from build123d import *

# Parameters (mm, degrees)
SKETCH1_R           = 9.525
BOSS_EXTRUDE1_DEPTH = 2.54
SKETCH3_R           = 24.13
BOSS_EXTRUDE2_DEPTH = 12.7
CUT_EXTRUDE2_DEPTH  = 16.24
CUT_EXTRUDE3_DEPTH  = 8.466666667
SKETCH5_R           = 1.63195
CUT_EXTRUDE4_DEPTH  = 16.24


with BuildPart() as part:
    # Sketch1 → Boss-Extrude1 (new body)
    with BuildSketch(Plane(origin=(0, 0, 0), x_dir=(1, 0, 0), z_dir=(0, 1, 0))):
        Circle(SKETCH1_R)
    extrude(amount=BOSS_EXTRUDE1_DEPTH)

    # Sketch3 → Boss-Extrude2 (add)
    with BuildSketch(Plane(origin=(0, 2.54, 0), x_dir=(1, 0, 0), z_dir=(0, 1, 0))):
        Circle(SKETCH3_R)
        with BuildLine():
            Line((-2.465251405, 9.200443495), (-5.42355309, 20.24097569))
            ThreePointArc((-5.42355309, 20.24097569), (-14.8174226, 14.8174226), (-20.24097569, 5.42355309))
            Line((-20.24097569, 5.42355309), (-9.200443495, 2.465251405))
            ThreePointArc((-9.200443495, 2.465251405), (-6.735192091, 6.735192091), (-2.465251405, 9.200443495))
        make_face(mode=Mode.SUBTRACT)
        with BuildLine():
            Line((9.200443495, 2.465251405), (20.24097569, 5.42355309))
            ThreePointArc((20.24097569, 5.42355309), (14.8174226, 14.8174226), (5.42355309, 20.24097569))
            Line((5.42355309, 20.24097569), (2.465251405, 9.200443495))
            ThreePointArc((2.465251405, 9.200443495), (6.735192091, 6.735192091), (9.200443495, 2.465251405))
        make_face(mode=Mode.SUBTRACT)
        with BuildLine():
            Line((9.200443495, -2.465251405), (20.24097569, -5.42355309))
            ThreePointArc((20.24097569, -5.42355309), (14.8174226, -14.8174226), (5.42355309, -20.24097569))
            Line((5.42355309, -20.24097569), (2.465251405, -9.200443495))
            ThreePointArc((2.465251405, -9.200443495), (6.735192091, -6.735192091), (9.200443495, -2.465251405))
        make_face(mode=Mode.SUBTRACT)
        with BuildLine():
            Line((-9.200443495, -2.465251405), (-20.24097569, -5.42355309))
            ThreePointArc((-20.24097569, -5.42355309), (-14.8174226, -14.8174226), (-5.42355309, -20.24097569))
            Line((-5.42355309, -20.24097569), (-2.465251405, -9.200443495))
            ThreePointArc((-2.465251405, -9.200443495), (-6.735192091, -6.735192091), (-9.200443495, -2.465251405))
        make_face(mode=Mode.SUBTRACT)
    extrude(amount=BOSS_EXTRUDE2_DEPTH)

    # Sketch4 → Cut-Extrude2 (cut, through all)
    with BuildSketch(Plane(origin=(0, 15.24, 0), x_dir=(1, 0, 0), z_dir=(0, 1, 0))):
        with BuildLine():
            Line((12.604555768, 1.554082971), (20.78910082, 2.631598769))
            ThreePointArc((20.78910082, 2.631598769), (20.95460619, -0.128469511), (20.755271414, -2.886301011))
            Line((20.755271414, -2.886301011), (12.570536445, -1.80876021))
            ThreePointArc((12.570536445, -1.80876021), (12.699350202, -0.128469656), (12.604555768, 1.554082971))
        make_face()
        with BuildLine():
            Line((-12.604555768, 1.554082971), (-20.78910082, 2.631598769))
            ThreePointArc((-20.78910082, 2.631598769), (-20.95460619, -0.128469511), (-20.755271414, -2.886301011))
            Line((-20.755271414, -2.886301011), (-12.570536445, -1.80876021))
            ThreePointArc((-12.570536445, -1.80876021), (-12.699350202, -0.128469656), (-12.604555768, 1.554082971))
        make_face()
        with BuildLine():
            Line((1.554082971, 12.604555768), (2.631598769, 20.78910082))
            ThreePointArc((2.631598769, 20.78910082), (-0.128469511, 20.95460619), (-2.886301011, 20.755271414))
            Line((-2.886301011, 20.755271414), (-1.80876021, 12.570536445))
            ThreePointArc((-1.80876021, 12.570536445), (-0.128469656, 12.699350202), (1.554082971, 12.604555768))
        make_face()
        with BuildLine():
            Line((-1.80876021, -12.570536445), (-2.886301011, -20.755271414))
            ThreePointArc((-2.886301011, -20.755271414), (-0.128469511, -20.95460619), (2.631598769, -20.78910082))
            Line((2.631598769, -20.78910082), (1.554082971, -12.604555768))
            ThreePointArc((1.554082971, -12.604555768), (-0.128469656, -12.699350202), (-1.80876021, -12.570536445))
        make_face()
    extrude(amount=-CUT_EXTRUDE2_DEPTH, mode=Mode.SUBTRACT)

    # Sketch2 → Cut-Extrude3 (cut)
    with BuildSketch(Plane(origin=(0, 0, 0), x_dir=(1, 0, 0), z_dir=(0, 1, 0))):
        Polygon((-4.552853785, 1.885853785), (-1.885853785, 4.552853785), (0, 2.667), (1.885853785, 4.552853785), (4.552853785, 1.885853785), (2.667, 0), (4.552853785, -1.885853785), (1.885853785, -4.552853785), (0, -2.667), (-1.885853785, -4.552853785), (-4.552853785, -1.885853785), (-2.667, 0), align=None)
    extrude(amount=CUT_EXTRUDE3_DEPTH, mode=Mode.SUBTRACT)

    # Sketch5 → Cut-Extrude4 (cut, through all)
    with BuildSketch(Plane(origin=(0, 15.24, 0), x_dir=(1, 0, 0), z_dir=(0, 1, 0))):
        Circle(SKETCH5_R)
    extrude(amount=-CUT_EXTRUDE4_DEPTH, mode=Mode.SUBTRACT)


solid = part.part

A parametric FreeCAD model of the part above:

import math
import FreeCAD as App
import Part
import Sketcher
Q = App.Units.Quantity


def add_polygon(sketch, points):
    """Adds a closed chain of lines whose ends are joined by coincident constraints."""
    first, n = sketch.GeometryCount, len(points)
    for a, b in zip(points, points[1:] + points[:1]):
        sketch.addGeometry(Part.LineSegment(App.Vector(*a, 0), App.Vector(*b, 0)), False)
    for i in range(n):
        sketch.addConstraint(Sketcher.Constraint("Coincident", first + i, 2, first + (i + 1) % n, 1))

doc = App.newDocument("Part")
body = doc.addObject("PartDesign::Body", "Body")

# Sketch on XZ plane
sketch1 = body.newObject("Sketcher::SketchObject", "Sketch")
sketch1.AttachmentSupport = (doc.getObject("XZ_Plane"), [""])
sketch1.MapMode = "FlatFace"
sketch1.addGeometry(Part.Circle(App.Vector(0, 0, 0), App.Vector(0, 0, 1), 9.525), False)
sketch1.addConstraint(Sketcher.Constraint("Coincident", 0, 3, -1, 1))
sketch1.addConstraint(Sketcher.Constraint("Diameter", 0, Q("0.75 in")))
pad1 = body.newObject("PartDesign::Pad", "Pad")
pad1.Profile = sketch1
pad1.Length = Q("0.1 in")
pad1.Reversed = True

# Sketch on XZ plane
sketch2 = body.newObject("Sketcher::SketchObject", "Sketch001")
sketch2.AttachmentSupport = (doc.getObject("XZ_Plane"), [""])
sketch2.MapMode = "FlatFace"
sketch2.AttachmentOffset = App.Placement(App.Vector(0, 0, -0.1 * 25.4), App.Rotation())
sketch2.addGeometry(Part.Circle(App.Vector(0, 0, 0), App.Vector(0, 0, 1), 24.13), False)
sketch2.addGeometry(Part.LineSegment(App.Vector(-20.240976, 5.423553, 0), App.Vector(-9.200443, 2.465251, 0)), False)
sketch2.addGeometry(Part.ArcOfCircle(Part.Circle(App.Vector(0, 0, 0), App.Vector(0, 0, 1), 9.525), math.radians(105), math.radians(165)), False)
sketch2.addGeometry(Part.LineSegment(App.Vector(-2.465251, 9.200443, 0), App.Vector(-5.423553, 20.240976, 0)), False)
sketch2.addGeometry(Part.ArcOfCircle(Part.Circle(App.Vector(0, 0, 0), App.Vector(0, 0, 1), 20.955), math.radians(105), math.radians(165)), False)
sketch2.addGeometry(Part.ArcOfCircle(Part.Circle(App.Vector(0, 0, 0), App.Vector(0, 0, 1), 9.525), math.radians(15), math.radians(75)), False)
sketch2.addGeometry(Part.LineSegment(App.Vector(9.200443, 2.465251, 0), App.Vector(20.240976, 5.423553, 0)), False)
sketch2.addGeometry(Part.ArcOfCircle(Part.Circle(App.Vector(0, 0, 0), App.Vector(0, 0, 1), 20.955), math.radians(15), math.radians(75)), False)
sketch2.addGeometry(Part.LineSegment(App.Vector(5.423553, 20.240976, 0), App.Vector(2.465251, 9.200443, 0)), False)
sketch2.addGeometry(Part.LineSegment(App.Vector(-5.423553, -20.240976, 0), App.Vector(-2.465251, -9.200443, 0)), False)
sketch2.addGeometry(Part.ArcOfCircle(Part.Circle(App.Vector(0, 0, 0), App.Vector(0, 0, 1), 9.525), math.radians(-165), math.radians(-105)), False)
sketch2.addGeometry(Part.LineSegment(App.Vector(-9.200443, -2.465251, 0), App.Vector(-20.240976, -5.423553, 0)), False)
sketch2.addGeometry(Part.ArcOfCircle(Part.Circle(App.Vector(0, 0, 0), App.Vector(0, 0, 1), 20.955), math.radians(-165), math.radians(-105)), False)
sketch2.addGeometry(Part.LineSegment(App.Vector(20.240976, -5.423553, 0), App.Vector(9.200443, -2.465251, 0)), False)
sketch2.addGeometry(Part.ArcOfCircle(Part.Circle(App.Vector(0, 0, 0), App.Vector(0, 0, 1), 9.525), math.radians(-75), math.radians(-15)), False)
sketch2.addGeometry(Part.LineSegment(App.Vector(2.465251, -9.200443, 0), App.Vector(5.423553, -20.240976, 0)), False)
sketch2.addGeometry(Part.ArcOfCircle(Part.Circle(App.Vector(0, 0, 0), App.Vector(0, 0, 1), 20.955), math.radians(-75), math.radians(-15)), False)
sketch2.addConstraint(Sketcher.Constraint("Coincident", 1, 2, 2, 2))
sketch2.addConstraint(Sketcher.Constraint("Coincident", 2, 1, 3, 1))
sketch2.addConstraint(Sketcher.Constraint("Coincident", 3, 2, 4, 1))
sketch2.addConstraint(Sketcher.Constraint("Coincident", 4, 2, 1, 1))
sketch2.addConstraint(Sketcher.Constraint("Coincident", 5, 1, 6, 1))
sketch2.addConstraint(Sketcher.Constraint("Coincident", 6, 2, 7, 1))
sketch2.addConstraint(Sketcher.Constraint("Coincident", 7, 2, 8, 1))
sketch2.addConstraint(Sketcher.Constraint("Coincident", 8, 2, 5, 2))
sketch2.addConstraint(Sketcher.Constraint("Coincident", 9, 2, 10, 2))
sketch2.addConstraint(Sketcher.Constraint("Coincident", 10, 1, 11, 1))
sketch2.addConstraint(Sketcher.Constraint("Coincident", 11, 2, 12, 1))
sketch2.addConstraint(Sketcher.Constraint("Coincident", 12, 2, 9, 1))
sketch2.addConstraint(Sketcher.Constraint("Coincident", 13, 2, 14, 2))
sketch2.addConstraint(Sketcher.Constraint("Coincident", 14, 1, 15, 1))
sketch2.addConstraint(Sketcher.Constraint("Coincident", 15, 2, 16, 1))
sketch2.addConstraint(Sketcher.Constraint("Coincident", 16, 2, 13, 1))
sketch2.addConstraint(Sketcher.Constraint("Coincident", 0, 3, -1, 1))
sketch2.addConstraint(Sketcher.Constraint("Coincident", 2, 3, -1, 1))
sketch2.addConstraint(Sketcher.Constraint("Coincident", 4, 3, -1, 1))
sketch2.addConstraint(Sketcher.Constraint("Coincident", 5, 3, -1, 1))
sketch2.addConstraint(Sketcher.Constraint("Coincident", 7, 3, -1, 1))
sketch2.addConstraint(Sketcher.Constraint("Coincident", 10, 3, -1, 1))
sketch2.addConstraint(Sketcher.Constraint("Coincident", 12, 3, -1, 1))
sketch2.addConstraint(Sketcher.Constraint("Coincident", 14, 3, -1, 1))
sketch2.addConstraint(Sketcher.Constraint("Coincident", 16, 3, -1, 1))
sketch2.addConstraint(Sketcher.Constraint("Equal", 2, 5))
sketch2.addConstraint(Sketcher.Constraint("Equal", 4, 7))
sketch2.addConstraint(Sketcher.Constraint("Equal", 5, 10))
sketch2.addConstraint(Sketcher.Constraint("Equal", 7, 12))
sketch2.addConstraint(Sketcher.Constraint("Equal", 10, 14))
sketch2.addConstraint(Sketcher.Constraint("Equal", 12, 16))
sketch2.addConstraint(Sketcher.Constraint("Perpendicular", 3, 6))
sketch2.addConstraint(Sketcher.Constraint("Perpendicular", 1, 8))
sketch2.addConstraint(Sketcher.Constraint("Parallel", 8, 9))
sketch2.addConstraint(Sketcher.Constraint("Parallel", 6, 11))
sketch2.addConstraint(Sketcher.Constraint("Perpendicular", 9, 13))
sketch2.addConstraint(Sketcher.Constraint("Perpendicular", 11, 15))
sketch2.addConstraint(Sketcher.Constraint("Horizontal", 1, 2, 5, 1))
sketch2.addConstraint(Sketcher.Constraint("Horizontal", 4, 2, 6, 2))
sketch2.addConstraint(Sketcher.Constraint("Horizontal", 3, 2, 7, 2))
sketch2.addConstraint(Sketcher.Constraint("Horizontal", 10, 1, 13, 2))
sketch2.addConstraint(Sketcher.Constraint("Horizontal", 9, 2, 14, 1))
sketch2.addConstraint(Sketcher.Constraint("Vertical", 2, 1, 9, 2))
sketch2.addConstraint(Sketcher.Constraint("Vertical", 1, 2, 10, 1))
sketch2.addConstraint(Sketcher.Constraint("Diameter", 0, Q("1.9 in")))
sketch2.addConstraint(Sketcher.Constraint("Angle", 1, Q("-15 deg")))
sketch2.addConstraint(Sketcher.Constraint("Radius", 2, Q("0.375 in")))
sketch2.addConstraint(Sketcher.Constraint("Radius", 4, Q("0.825 in")))
sketch2.addConstraint(Sketcher.Constraint("DistanceY", -1, 1, 1, 2, Q("2.465251 mm")))
sketch2.addConstraint(Sketcher.Constraint("DistanceX", 2, 1, -1, 1, Q("2.465251 mm")))
pad2 = body.newObject("PartDesign::Pad", "Pad001")
pad2.Profile = sketch2
pad2.Length = Q("0.5 in")
pad2.Reversed = True

# Sketch on XZ plane
sketch3 = body.newObject("Sketcher::SketchObject", "Sketch002")
sketch3.AttachmentSupport = (doc.getObject("XZ_Plane"), [""])
sketch3.MapMode = "FlatFace"
sketch3.AttachmentOffset = App.Placement(App.Vector(0, 0, -0.6 * 25.4), App.Rotation())
sketch3.addGeometry(Part.LineSegment(App.Vector(20.789101, -2.631599, 0), App.Vector(12.604556, -1.554083, 0)), False)
sketch3.addGeometry(Part.ArcOfCircle(Part.Circle(App.Vector(0, 0, 0), App.Vector(0, 0, 1), 12.7), math.radians(-7.028829), math.radians(8.188025)), False)
sketch3.addGeometry(Part.LineSegment(App.Vector(12.570536, 1.80876, 0), App.Vector(20.755271, 2.886301, 0)), False)
sketch3.addGeometry(Part.ArcOfCircle(Part.Circle(App.Vector(0, 0, 0), App.Vector(0, 0, 1), 20.955), math.radians(-7.214444), math.radians(7.916978)), False)
sketch3.addGeometry(Part.LineSegment(App.Vector(-12.604556, -1.554083, 0), App.Vector(-20.789101, -2.631599, 0)), False)
sketch3.addGeometry(Part.ArcOfCircle(Part.Circle(App.Vector(0, 0, 0), App.Vector(0, 0, 1), 20.955), math.radians(172.083022), math.radians(187.214444)), False)
sketch3.addGeometry(Part.LineSegment(App.Vector(-20.755271, 2.886301, 0), App.Vector(-12.570536, 1.80876, 0)), False)
sketch3.addGeometry(Part.ArcOfCircle(Part.Circle(App.Vector(0, 0, 0), App.Vector(0, 0, 1), 12.7), math.radians(171.811975), math.radians(187.028829)), False)
sketch3.addGeometry(Part.LineSegment(App.Vector(1.554083, -12.604556, 0), App.Vector(2.631599, -20.789101, 0)), False)
sketch3.addGeometry(Part.ArcOfCircle(Part.Circle(App.Vector(0, 0, 0), App.Vector(0, 0, 1), 20.955), math.radians(-97.916978), math.radians(-82.785556)), False)
sketch3.addGeometry(Part.LineSegment(App.Vector(-2.886301, -20.755271, 0), App.Vector(-1.80876, -12.570536, 0)), False)
sketch3.addGeometry(Part.ArcOfCircle(Part.Circle(App.Vector(0, 0, 0), App.Vector(0, 0, 1), 12.7), math.radians(-98.188025), math.radians(-82.971171)), False)
sketch3.addGeometry(Part.LineSegment(App.Vector(-1.80876, 12.570536, 0), App.Vector(-2.886301, 20.755271, 0)), False)
sketch3.addGeometry(Part.ArcOfCircle(Part.Circle(App.Vector(0, 0, 0), App.Vector(0, 0, 1), 20.955), math.radians(82.785556), math.radians(97.916978)), False)
sketch3.addGeometry(Part.LineSegment(App.Vector(2.631599, 20.789101, 0), App.Vector(1.554083, 12.604556, 0)), False)
sketch3.addGeometry(Part.ArcOfCircle(Part.Circle(App.Vector(0, 0, 0), App.Vector(0, 0, 1), 12.7), math.radians(82.971171), math.radians(98.188025)), False)
sketch3.addConstraint(Sketcher.Constraint("Coincident", 0, 2, 1, 1))
sketch3.addConstraint(Sketcher.Constraint("Coincident", 1, 2, 2, 1))
sketch3.addConstraint(Sketcher.Constraint("Coincident", 2, 2, 3, 2))
sketch3.addConstraint(Sketcher.Constraint("Coincident", 3, 1, 0, 1))
sketch3.addConstraint(Sketcher.Constraint("Coincident", 4, 2, 5, 2))
sketch3.addConstraint(Sketcher.Constraint("Coincident", 5, 1, 6, 1))
sketch3.addConstraint(Sketcher.Constraint("Coincident", 6, 2, 7, 1))
sketch3.addConstraint(Sketcher.Constraint("Coincident", 7, 2, 4, 1))
sketch3.addConstraint(Sketcher.Constraint("Coincident", 8, 2, 9, 2))
sketch3.addConstraint(Sketcher.Constraint("Coincident", 9, 1, 10, 1))
sketch3.addConstraint(Sketcher.Constraint("Coincident", 10, 2, 11, 1))
sketch3.addConstraint(Sketcher.Constraint("Coincident", 11, 2, 8, 1))
sketch3.addConstraint(Sketcher.Constraint("Coincident", 12, 2, 13, 2))
sketch3.addConstraint(Sketcher.Constraint("Coincident", 13, 1, 14, 1))
sketch3.addConstraint(Sketcher.Constraint("Coincident", 14, 2, 15, 1))
sketch3.addConstraint(Sketcher.Constraint("Coincident", 15, 2, 12, 1))
sketch3.addConstraint(Sketcher.Constraint("Coincident", 1, 3, -1, 1))
sketch3.addConstraint(Sketcher.Constraint("Coincident", 3, 3, -1, 1))
sketch3.addConstraint(Sketcher.Constraint("Coincident", 5, 3, -1, 1))
sketch3.addConstraint(Sketcher.Constraint("Coincident", 7, 3, -1, 1))
sketch3.addConstraint(Sketcher.Constraint("Coincident", 9, 3, -1, 1))
sketch3.addConstraint(Sketcher.Constraint("Coincident", 11, 3, -1, 1))
sketch3.addConstraint(Sketcher.Constraint("Coincident", 13, 3, -1, 1))
sketch3.addConstraint(Sketcher.Constraint("Coincident", 15, 3, -1, 1))
sketch3.addConstraint(Sketcher.Constraint("Equal", 3, 5))
sketch3.addConstraint(Sketcher.Constraint("Equal", 1, 7))
sketch3.addConstraint(Sketcher.Constraint("Equal", 5, 9))
sketch3.addConstraint(Sketcher.Constraint("Equal", 7, 11))
sketch3.addConstraint(Sketcher.Constraint("Equal", 9, 13))
sketch3.addConstraint(Sketcher.Constraint("Equal", 11, 15))
sketch3.addConstraint(Sketcher.Constraint("Parallel", 2, 4))
sketch3.addConstraint(Sketcher.Constraint("Parallel", 0, 6))
sketch3.addConstraint(Sketcher.Constraint("Perpendicular", 4, 8))
sketch3.addConstraint(Sketcher.Constraint("Perpendicular", 6, 10))
sketch3.addConstraint(Sketcher.Constraint("Parallel", 8, 12))
sketch3.addConstraint(Sketcher.Constraint("Parallel", 10, 14))
sketch3.addConstraint(Sketcher.Constraint("Horizontal", 3, 1, 4, 2))
sketch3.addConstraint(Sketcher.Constraint("Horizontal", 2, 2, 5, 1))
sketch3.addConstraint(Sketcher.Constraint("Horizontal", 1, 2, 6, 2))
sketch3.addConstraint(Sketcher.Constraint("Vertical", 9, 1, 12, 2))
sketch3.addConstraint(Sketcher.Constraint("Vertical", 8, 2, 13, 1))
sketch3.addConstraint(Sketcher.Constraint("Radius", 1, Q("0.5 in")))
sketch3.addConstraint(Sketcher.Constraint("Radius", 3, Q("0.825 in")))
sketch3.addConstraint(Sketcher.Constraint("Angle", 0, Q("172.5 deg")))
sketch3.addConstraint(Sketcher.Constraint("DistanceY", -1, 1, 2, 2, Q("2.886301 mm")))
sketch3.addConstraint(Sketcher.Constraint("DistanceX", -1, 1, 3, 1, Q("20.789101 mm")))
sketch3.addConstraint(Sketcher.Constraint("DistanceX", -1, 1, 8, 2, Q("2.631599 mm")))
sketch3.addConstraint(Sketcher.Constraint("DistanceX", 9, 1, -1, 1, Q("2.886301 mm")))
pocket1 = body.newObject("PartDesign::Pocket", "Pocket")
pocket1.Profile = sketch3
pocket1.Type = "ThroughAll"
pocket1.Reversed = True

# Sketch on XZ plane
sketch4 = body.newObject("Sketcher::SketchObject", "Sketch003")
sketch4.AttachmentSupport = (doc.getObject("XZ_Plane"), [""])
sketch4.MapMode = "FlatFace"
add_polygon(sketch4, [(-1.885854, -4.552854), (-4.552854, -1.885854), (-2.667, 0), (-4.552854, 1.885854), (-1.885854, 4.552854), (0, 2.667), (1.885854, 4.552854), (4.552854, 1.885854), (2.667, 0), (4.552854, -1.885854), (1.885854, -4.552854), (0, -2.667)])  # lines 0-11
sketch4.addConstraint(Sketcher.Constraint("Symmetric", 0, 2, 6, 2, -1, 1))
sketch4.addConstraint(Sketcher.Constraint("Symmetric", 1, 2, 7, 2, -1, 1))
sketch4.addConstraint(Sketcher.Constraint("Symmetric", 2, 2, 8, 2, -1, 1))
sketch4.addConstraint(Sketcher.Constraint("Symmetric", 3, 2, 9, 2, -1, 1))
sketch4.addConstraint(Sketcher.Constraint("Symmetric", 4, 2, 10, 2, -1, 1))
sketch4.addConstraint(Sketcher.Constraint("Symmetric", 5, 2, 11, 2, -1, 1))
sketch4.addConstraint(Sketcher.Constraint("Symmetric", 3, 2, 5, 2, -2))
sketch4.addConstraint(Sketcher.Constraint("Symmetric", 2, 2, 6, 2, -2))
sketch4.addConstraint(Sketcher.Constraint("PointOnObject", 1, 2, -1))
sketch4.addConstraint(Sketcher.Constraint("PointOnObject", 4, 2, -2))
sketch4.addConstraint(Sketcher.Constraint("Perpendicular", 0, 1))
sketch4.addConstraint(Sketcher.Constraint("Perpendicular", 1, 2))
sketch4.addConstraint(Sketcher.Constraint("Perpendicular", 3, 4))
sketch4.addConstraint(Sketcher.Constraint("Equal", 2, 4))
sketch4.addConstraint(Sketcher.Constraint("DistanceX", 1, 2, 7, 2, Q("0.21 in")))
sketch4.addConstraint(Sketcher.Constraint("Distance", 1, Q("0.105 in")))
pocket2 = body.newObject("PartDesign::Pocket", "Pocket001")
pocket2.Profile = sketch4
pocket2.Length = 8.466667

# Sketch on XZ plane
sketch5 = body.newObject("Sketcher::SketchObject", "Sketch004")
sketch5.AttachmentSupport = (doc.getObject("XZ_Plane"), [""])
sketch5.MapMode = "FlatFace"
sketch5.AttachmentOffset = App.Placement(App.Vector(0, 0, -0.6 * 25.4), App.Rotation())
sketch5.addGeometry(Part.Circle(App.Vector(0, 0, 0), App.Vector(0, 0, 1), 1.63195), False)
sketch5.addConstraint(Sketcher.Constraint("Coincident", 0, 3, -1, 1))
sketch5.addConstraint(Sketcher.Constraint("Diameter", 0, Q("0.1285 in")))
pocket3 = body.newObject("PartDesign::Pocket", "Pocket002")
pocket3.Profile = sketch5
pocket3.Type = "ThroughAll"
pocket3.Reversed = True

doc.recompute()
